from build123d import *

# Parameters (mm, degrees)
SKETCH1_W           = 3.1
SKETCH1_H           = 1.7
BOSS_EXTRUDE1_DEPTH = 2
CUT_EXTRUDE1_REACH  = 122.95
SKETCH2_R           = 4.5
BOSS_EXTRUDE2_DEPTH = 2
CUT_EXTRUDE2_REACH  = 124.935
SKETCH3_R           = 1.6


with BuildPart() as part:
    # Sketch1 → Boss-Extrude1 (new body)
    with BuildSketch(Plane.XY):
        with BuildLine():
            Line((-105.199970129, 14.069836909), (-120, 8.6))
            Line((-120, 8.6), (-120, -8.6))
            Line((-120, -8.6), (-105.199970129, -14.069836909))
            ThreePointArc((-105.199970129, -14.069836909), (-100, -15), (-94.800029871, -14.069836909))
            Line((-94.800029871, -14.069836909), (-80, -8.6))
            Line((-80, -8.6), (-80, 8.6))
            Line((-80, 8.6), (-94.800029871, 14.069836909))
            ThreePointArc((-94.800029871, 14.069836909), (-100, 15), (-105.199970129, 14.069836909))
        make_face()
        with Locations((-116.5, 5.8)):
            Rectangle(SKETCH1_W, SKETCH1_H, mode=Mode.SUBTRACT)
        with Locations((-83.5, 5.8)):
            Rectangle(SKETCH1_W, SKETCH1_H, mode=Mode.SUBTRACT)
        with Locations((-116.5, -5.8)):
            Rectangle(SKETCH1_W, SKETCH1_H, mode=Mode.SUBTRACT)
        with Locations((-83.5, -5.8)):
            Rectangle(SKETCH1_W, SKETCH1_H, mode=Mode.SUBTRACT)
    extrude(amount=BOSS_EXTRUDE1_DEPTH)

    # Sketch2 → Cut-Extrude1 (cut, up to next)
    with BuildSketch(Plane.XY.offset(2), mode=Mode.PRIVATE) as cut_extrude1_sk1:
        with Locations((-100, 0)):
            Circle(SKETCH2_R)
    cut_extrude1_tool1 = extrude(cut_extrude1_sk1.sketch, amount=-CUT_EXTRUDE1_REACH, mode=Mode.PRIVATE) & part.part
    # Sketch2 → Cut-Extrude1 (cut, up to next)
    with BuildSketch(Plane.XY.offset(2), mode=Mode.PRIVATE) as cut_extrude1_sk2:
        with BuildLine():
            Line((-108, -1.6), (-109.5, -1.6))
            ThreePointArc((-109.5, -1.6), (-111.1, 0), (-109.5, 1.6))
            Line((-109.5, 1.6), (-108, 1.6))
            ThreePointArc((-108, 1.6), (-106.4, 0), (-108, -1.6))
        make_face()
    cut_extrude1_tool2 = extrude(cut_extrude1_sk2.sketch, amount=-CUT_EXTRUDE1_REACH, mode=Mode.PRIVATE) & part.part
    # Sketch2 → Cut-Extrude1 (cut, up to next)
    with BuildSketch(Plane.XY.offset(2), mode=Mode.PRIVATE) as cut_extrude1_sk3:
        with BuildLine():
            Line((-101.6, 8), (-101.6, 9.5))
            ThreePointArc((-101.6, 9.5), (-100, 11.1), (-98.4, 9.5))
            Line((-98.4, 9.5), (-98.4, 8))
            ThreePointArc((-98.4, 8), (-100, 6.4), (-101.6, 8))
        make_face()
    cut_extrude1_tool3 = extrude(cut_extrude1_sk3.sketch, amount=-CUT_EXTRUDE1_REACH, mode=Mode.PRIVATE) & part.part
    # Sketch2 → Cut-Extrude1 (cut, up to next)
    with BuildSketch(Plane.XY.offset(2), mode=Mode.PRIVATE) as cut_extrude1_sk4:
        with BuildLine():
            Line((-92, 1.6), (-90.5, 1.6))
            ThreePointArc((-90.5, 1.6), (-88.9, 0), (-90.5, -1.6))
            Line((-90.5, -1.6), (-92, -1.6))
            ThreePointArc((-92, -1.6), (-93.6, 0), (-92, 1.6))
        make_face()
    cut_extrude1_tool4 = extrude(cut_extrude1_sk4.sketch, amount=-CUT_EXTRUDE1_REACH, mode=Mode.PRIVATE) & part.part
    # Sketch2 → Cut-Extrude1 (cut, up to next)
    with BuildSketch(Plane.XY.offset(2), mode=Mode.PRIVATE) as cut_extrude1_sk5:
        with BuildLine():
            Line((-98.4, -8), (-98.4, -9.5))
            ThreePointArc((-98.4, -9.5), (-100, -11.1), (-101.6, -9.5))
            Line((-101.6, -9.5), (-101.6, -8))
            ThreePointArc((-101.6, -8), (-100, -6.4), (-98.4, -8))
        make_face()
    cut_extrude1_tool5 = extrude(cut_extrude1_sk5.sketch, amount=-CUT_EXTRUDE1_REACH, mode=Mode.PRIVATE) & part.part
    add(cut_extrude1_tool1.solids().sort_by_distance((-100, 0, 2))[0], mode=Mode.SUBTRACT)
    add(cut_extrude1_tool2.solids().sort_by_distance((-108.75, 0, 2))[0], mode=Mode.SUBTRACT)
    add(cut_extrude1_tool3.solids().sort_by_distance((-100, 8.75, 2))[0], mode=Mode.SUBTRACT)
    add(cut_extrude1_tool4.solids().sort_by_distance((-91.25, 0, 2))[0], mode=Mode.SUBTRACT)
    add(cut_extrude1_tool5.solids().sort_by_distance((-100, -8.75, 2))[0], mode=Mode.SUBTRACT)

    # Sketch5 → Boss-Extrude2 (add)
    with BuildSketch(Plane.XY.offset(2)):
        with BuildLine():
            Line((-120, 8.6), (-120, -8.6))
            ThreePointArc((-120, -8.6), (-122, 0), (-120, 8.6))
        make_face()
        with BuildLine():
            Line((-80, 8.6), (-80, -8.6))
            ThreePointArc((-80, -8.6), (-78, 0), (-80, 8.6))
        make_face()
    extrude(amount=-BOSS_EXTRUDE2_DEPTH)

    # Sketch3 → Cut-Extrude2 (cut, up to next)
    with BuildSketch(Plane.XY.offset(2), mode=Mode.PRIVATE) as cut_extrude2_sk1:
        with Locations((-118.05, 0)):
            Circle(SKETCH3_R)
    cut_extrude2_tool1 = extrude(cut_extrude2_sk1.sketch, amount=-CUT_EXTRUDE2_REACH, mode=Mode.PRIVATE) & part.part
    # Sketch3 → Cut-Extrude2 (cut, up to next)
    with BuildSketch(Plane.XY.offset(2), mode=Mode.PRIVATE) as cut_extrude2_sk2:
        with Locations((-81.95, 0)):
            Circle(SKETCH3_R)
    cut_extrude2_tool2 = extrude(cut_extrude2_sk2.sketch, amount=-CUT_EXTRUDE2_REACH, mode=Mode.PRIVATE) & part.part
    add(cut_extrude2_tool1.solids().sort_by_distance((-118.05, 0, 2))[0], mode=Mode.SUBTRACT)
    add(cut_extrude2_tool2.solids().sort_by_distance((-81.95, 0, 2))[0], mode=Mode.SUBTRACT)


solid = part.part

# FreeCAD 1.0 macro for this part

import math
import FreeCAD as App
import Part
import Sketcher

V = App.Vector
Q = App.Units.Quantity

doc = App.newDocument("Part")
body = doc.addObject("PartDesign::Body", "Body")

sketch1 = doc.addObject("Sketcher::SketchObject", "Sketch")
body.addObject(sketch1)
sketch1.AttachmentSupport = (doc.XY_Plane, [""])
sketch1.MapMode = "FlatFace"
sketch1.addGeometry([
    Part.LineSegment(V(-105.19997, 14.069837, 0), V(-120, 8.6, 0)),
    Part.LineSegment(V(-120, 8.6, 0), V(-120, -8.6, 0)),
    Part.LineSegment(V(-120, -8.6, 0), V(-105.19997, -14.069837, 0)),
    Part.ArcOfCircle(Part.Circle(V(-100, 0, 0), V(0, 0, 1), 15), math.radians(-110.283447), math.radians(-69.716553)),
    Part.LineSegment(V(-94.80003, -14.069837, 0), V(-80, -8.6, 0)),
    Part.LineSegment(V(-80, -8.6, 0), V(-80, 8.6, 0)),
    Part.LineSegment(V(-80, 8.6, 0), V(-94.80003, 14.069837, 0)),
    Part.ArcOfCircle(Part.Circle(V(-100, 0, 0), V(0, 0, 1), 15), math.radians(69.716553), math.radians(110.283447)),
    Part.LineSegment(V(-114.95, -6.65, 0), V(-118.05, -6.65, 0)),
    Part.LineSegment(V(-118.05, -6.65, 0), V(-118.05, -4.95, 0)),
    Part.LineSegment(V(-118.05, -4.95, 0), V(-114.95, -4.95, 0)),
    Part.LineSegment(V(-114.95, -4.95, 0), V(-114.95, -6.65, 0)),
    Part.LineSegment(V(-81.95, -6.65, 0), V(-85.05, -6.65, 0)),
    Part.LineSegment(V(-85.05, -6.65, 0), V(-85.05, -4.95, 0)),
    Part.LineSegment(V(-85.05, -4.95, 0), V(-81.95, -4.95, 0)),
    Part.LineSegment(V(-81.95, -4.95, 0), V(-81.95, -6.65, 0)),
    Part.LineSegment(V(-114.95, 4.95, 0), V(-118.05, 4.95, 0)),
    Part.LineSegment(V(-118.05, 4.95, 0), V(-118.05, 6.65, 0)),
    Part.LineSegment(V(-118.05, 6.65, 0), V(-114.95, 6.65, 0)),
    Part.LineSegment(V(-114.95, 6.65, 0), V(-114.95, 4.95, 0)),
    Part.LineSegment(V(-81.95, 4.95, 0), V(-85.05, 4.95, 0)),
    Part.LineSegment(V(-85.05, 4.95, 0), V(-85.05, 6.65, 0)),
    Part.LineSegment(V(-85.05, 6.65, 0), V(-81.95, 6.65, 0)),
    Part.LineSegment(V(-81.95, 6.65, 0), V(-81.95, 4.95, 0)),
], False)
sketch1.addConstraint([
    Sketcher.Constraint("Coincident", 0, 2, 1, 1),
    Sketcher.Constraint("Coincident", 1, 2, 2, 1),
    Sketcher.Constraint("Tangent", 2, 2, 3, 1),
    Sketcher.Constraint("Tangent", 3, 2, 4, 1),
    Sketcher.Constraint("Coincident", 4, 2, 5, 1),
    Sketcher.Constraint("Coincident", 5, 2, 6, 1),
    Sketcher.Constraint("Tangent", 6, 2, 7, 1),
    Sketcher.Constraint("Tangent", 7, 2, 0, 1),
    Sketcher.Constraint("Coincident", 8, 2, 9, 1),
    Sketcher.Constraint("Coincident", 9, 2, 10, 1),
    Sketcher.Constraint("Coincident", 10, 2, 11, 1),
    Sketcher.Constraint("Coincident", 11, 2, 8, 1),
    Sketcher.Constraint("Coincident", 12, 2, 13, 1),
    Sketcher.Constraint("Coincident", 13, 2, 14, 1),
    Sketcher.Constraint("Coincident", 14, 2, 15, 1),
    Sketcher.Constraint("Coincident", 15, 2, 12, 1),
    Sketcher.Constraint("Coincident", 16, 2, 17, 1),
    Sketcher.Constraint("Coincident", 17, 2, 18, 1),
    Sketcher.Constraint("Coincident", 18, 2, 19, 1),
    Sketcher.Constraint("Coincident", 19, 2, 16, 1),
    Sketcher.Constraint("Coincident", 20, 2, 21, 1),
    Sketcher.Constraint("Coincident", 21, 2, 22, 1),
    Sketcher.Constraint("Coincident", 22, 2, 23, 1),
    Sketcher.Constraint("Coincident", 23, 2, 20, 1),
    Sketcher.Constraint("Vertical", 1),
    Sketcher.Constraint("Vertical", 5),
    Sketcher.Constraint("Horizontal", 8),
    Sketcher.Constraint("Vertical", 9),
    Sketcher.Constraint("Horizontal", 10),
    Sketcher.Constraint("Vertical", 11),
    Sketcher.Constraint("Horizontal", 12),
    Sketcher.Constraint("Vertical", 13),
    Sketcher.Constraint("Horizontal", 14),
    Sketcher.Constraint("Vertical", 15),
    Sketcher.Constraint("Horizontal", 16),
    Sketcher.Constraint("Vertical", 17),
    Sketcher.Constraint("Horizontal", 18),
    Sketcher.Constraint("Vertical", 19),
    Sketcher.Constraint("Horizontal", 20),
    Sketcher.Constraint("Vertical", 21),
    Sketcher.Constraint("Horizontal", 22),
    Sketcher.Constraint("Vertical", 23),
    Sketcher.Constraint("Coincident", 7, 3, 3, 3),
    Sketcher.Constraint("Equal", 3, 7),
    Sketcher.Constraint("Symmetric", 3, 2, 6, 2, -1),
    Sketcher.Constraint("Symmetric", 9, 2, 16, 2, -1),
    Sketcher.Constraint("Symmetric", 11, 2, 18, 2, -1),
    Sketcher.Constraint("Symmetric", 13, 2, 20, 2, -1),
    Sketcher.Constraint("Symmetric", 15, 2, 22, 2, -1),
    Sketcher.Constraint("Parallel", 0, 4),
    Sketcher.Constraint("Parallel", 2, 6),
    Sketcher.Constraint("Horizontal", 1, 2, 4, 2),
    Sketcher.Constraint("Horizontal", 11, 2, 12, 2),
    Sketcher.Constraint("Horizontal", 10, 2, 13, 2),
    Sketcher.Constraint("Equal", 10, 12),
    Sketcher.Constraint("Radius", 3, Q("15 mm")),
    Sketcher.Constraint("DistanceX", 8, 2, 8, 1, Q("3.1 mm")),
    Sketcher.Constraint("DistanceY", 1, 2, 1, 1, Q("17.2 mm")),
    Sketcher.Constraint("DistanceY", 9, 1, 9, 2, Q("1.7 mm")),
    Sketcher.Constraint("DistanceX", 3, 3, -1, 1, Q("100 mm")),
    Sketcher.Constraint("DistanceX", 0, 2, -1, 1, Q("120 mm")),
    Sketcher.Constraint("DistanceY", 9, 2, 16, 2, Q("9.9 mm")),
    Sketcher.Constraint("DistanceX", 8, 2, -1, 1, Q("118.05 mm")),
    Sketcher.Constraint("DistanceX", 12, 2, -1, 1, Q("85.05 mm")),
])
pad1 = doc.addObject("PartDesign::Pad", "Pad")
body.addObject(pad1)
pad1.Profile = sketch1
pad1.Length = 2

sketch2 = doc.addObject("Sketcher::SketchObject", "Sketch001")
body.addObject(sketch2)
sketch2.AttachmentSupport = (doc.XY_Plane, [""])
sketch2.MapMode = "FlatFace"
sketch2.AttachmentOffset = App.Placement(V(0, 0, 2), App.Rotation())
sketch2.addGeometry(Part.Circle(V(-100, 0, 0), V(0, 0, 1), 4.5), False)
sketch2.addConstraint([
    Sketcher.Constraint("PointOnObject", 0, 3, -1),
    Sketcher.Constraint("Diameter", 0, Q("9 mm")),
    Sketcher.Constraint("DistanceX", 0, 3, -1, 1, Q("100 mm")),
])
pocket1 = doc.addObject("PartDesign::Pocket", "Pocket")
body.addObject(pocket1)
pocket1.Profile = sketch2
pocket1.Type = "UpToFirst"

sketch3 = doc.addObject("Sketcher::SketchObject", "Sketch002")
body.addObject(sketch3)
sketch3.AttachmentSupport = (doc.XY_Plane, [""])
sketch3.MapMode = "FlatFace"
sketch3.AttachmentOffset = App.Placement(V(0, 0, 2), App.Rotation())
sketch3.addGeometry([
    Part.LineSegment(V(-109.5, -1.6, 0), V(-108, -1.6, 0)),
    Part.ArcOfCircle(Part.Circle(V(-108, 0, 0), V(0, 0, 1), 1.6), math.radians(-90), math.radians(90)),
    Part.LineSegment(V(-108, 1.6, 0), V(-109.5, 1.6, 0)),
    Part.ArcOfCircle(Part.Circle(V(-109.5, 0, 0), V(0, 0, 1), 1.6), math.radians(90), math.radians(270)),
], False)
sketch3.addConstraint([
    Sketcher.Constraint("Tangent", 0, 2, 1, 1),
    Sketcher.Constraint("Tangent", 1, 2, 2, 1),
    Sketcher.Constraint("Tangent", 2, 2, 3, 1),
    Sketcher.Constraint("Tangent", 3, 2, 0, 1),
    Sketcher.Constraint("Horizontal", 0),
    Sketcher.Constraint("Horizontal", 2),
    Sketcher.Constraint("PointOnObject", 1, 3, -1),
    Sketcher.Constraint("Radius", 1, Q("1.6 mm")),
    Sketcher.Constraint("DistanceX", 0, 1, 0, 2, Q("1.5 mm")),
    Sketcher.Constraint("DistanceX", 1, 3, -1, 1, Q("108 mm")),
])
pocket2 = doc.addObject("PartDesign::Pocket", "Pocket001")
body.addObject(pocket2)
pocket2.Profile = sketch3
pocket2.Type = "UpToFirst"

sketch4 = doc.addObject("Sketcher::SketchObject", "Sketch003")
body.addObject(sketch4)
sketch4.AttachmentSupport = (doc.XY_Plane, [""])
sketch4.MapMode = "FlatFace"
sketch4.AttachmentOffset = App.Placement(V(0, 0, 2), App.Rotation())
sketch4.addGeometry([
    Part.LineSegment(V(-101.6, 9.5, 0), V(-101.6, 8, 0)),
    Part.ArcOfCircle(Part.Circle(V(-100, 8, 0), V(0, 0, 1), 1.6), math.radians(180), math.radians(360)),
    Part.LineSegment(V(-98.4, 8, 0), V(-98.4, 9.5, 0)),
    Part.ArcOfCircle(Part.Circle(V(-100, 9.5, 0), V(0, 0, 1), 1.6), math.radians(0), math.radians(180)),
], False)
sketch4.addConstraint([
    Sketcher.Constraint("Tangent", 0, 2, 1, 1),
    Sketcher.Constraint("Tangent", 1, 2, 2, 1),
    Sketcher.Constraint("Tangent", 2, 2, 3, 1),
    Sketcher.Constraint("Tangent", 3, 2, 0, 1),
    Sketcher.Constraint("Vertical", 0),
    Sketcher.Constraint("Vertical", 2),
    Sketcher.Constraint("Radius", 1, Q("1.6 mm")),
    Sketcher.Constraint("DistanceY", 0, 2, 0, 1, Q("1.5 mm")),
    Sketcher.Constraint("DistanceX", 1, 3, -1, 1, Q("100 mm")),
    Sketcher.Constraint("DistanceY", -1, 1, 1, 3, Q("8 mm")),
])
pocket3 = doc.addObject("PartDesign::Pocket", "Pocket002")
body.addObject(pocket3)
pocket3.Profile = sketch4
pocket3.Type = "UpToFirst"

sketch5 = doc.addObject("Sketcher::SketchObject", "Sketch004")
body.addObject(sketch5)
sketch5.AttachmentSupport = (doc.XY_Plane, [""])
sketch5.MapMode = "FlatFace"
sketch5.AttachmentOffset = App.Placement(V(0, 0, 2), App.Rotation())
sketch5.addGeometry([
    Part.LineSegment(V(-90.5, 1.6, 0), V(-92, 1.6, 0)),
    Part.ArcOfCircle(Part.Circle(V(-92, 0, 0), V(0, 0, 1), 1.6), math.radians(90), math.radians(270)),
    Part.LineSegment(V(-92, -1.6, 0), V(-90.5, -1.6, 0)),
    Part.ArcOfCircle(Part.Circle(V(-90.5, 0, 0), V(0, 0, 1), 1.6), math.radians(-90), math.radians(90)),
], False)
sketch5.addConstraint([
    Sketcher.Constraint("Tangent", 0, 2, 1, 1),
    Sketcher.Constraint("Tangent", 1, 2, 2, 1),
    Sketcher.Constraint("Tangent", 2, 2, 3, 1),
    Sketcher.Constraint("Tangent", 3, 2, 0, 1),
    Sketcher.Constraint("Horizontal", 0),
    Sketcher.Constraint("Horizontal", 2),
    Sketcher.Constraint("PointOnObject", 1, 3, -1),
    Sketcher.Constraint("Radius", 1, Q("1.6 mm")),
    Sketcher.Constraint("DistanceX", 0, 2, 0, 1, Q("1.5 mm")),
    Sketcher.Constraint("DistanceX", 1, 3, -1, 1, Q("92 mm")),
])
pocket4 = doc.addObject("PartDesign::Pocket", "Pocket003")
body.addObject(pocket4)
pocket4.Profile = sketch5
pocket4.Type = "UpToFirst"

sketch6 = doc.addObject("Sketcher::SketchObject", "Sketch005")
body.addObject(sketch6)
sketch6.AttachmentSupport = (doc.XY_Plane, [""])
sketch6.MapMode = "FlatFace"
sketch6.AttachmentOffset = App.Placement(V(0, 0, 2), App.Rotation())
sketch6.addGeometry([
    Part.LineSegment(V(-98.4, -9.5, 0), V(-98.4, -8, 0)),
    Part.ArcOfCircle(Part.Circle(V(-100, -8, 0), V(0, 0, 1), 1.6), math.radians(0), math.radians(180)),
    Part.LineSegment(V(-101.6, -8, 0), V(-101.6, -9.5, 0)),
    Part.ArcOfCircle(Part.Circle(V(-100, -9.5, 0), V(0, 0, 1), 1.6), math.radians(180), math.radians(360)),
], False)
sketch6.addConstraint([
    Sketcher.Constraint("Tangent", 0, 2, 1, 1),
    Sketcher.Constraint("Tangent", 1, 2, 2, 1),
    Sketcher.Constraint("Tangent", 2, 2, 3, 1),
    Sketcher.Constraint("Tangent", 3, 2, 0, 1),
    Sketcher.Constraint("Vertical", 0),
    Sketcher.Constraint("Vertical", 2),
    Sketcher.Constraint("Radius", 1, Q("1.6 mm")),
    Sketcher.Constraint("DistanceY", 0, 1, 0, 2, Q("1.5 mm")),
    Sketcher.Constraint("DistanceX", 1, 3, -1, 1, Q("100 mm")),
    Sketcher.Constraint("DistanceY", 1, 3, -1, 1, Q("8 mm")),
])
pocket5 = doc.addObject("PartDesign::Pocket", "Pocket004")
body.addObject(pocket5)
pocket5.Profile = sketch6
pocket5.Type = "UpToFirst"

sketch7 = doc.addObject("Sketcher::SketchObject", "Sketch006")
body.addObject(sketch7)
sketch7.AttachmentSupport = (doc.XY_Plane, [""])
sketch7.MapMode = "FlatFace"
sketch7.AttachmentOffset = App.Placement(V(0, 0, 2), App.Rotation())
sketch7.addGeometry([
    Part.LineSegment(V(-120, -8.6, 0), V(-120, 8.6, 0)),
    Part.ArcOfCircle(Part.Circle(V(-102.51, 0, 0), V(0, 0, 1), 19.49), math.radians(153.816214), math.radians(206.183786)),
    Part.LineSegment(V(-80, 8.6, 0), V(-80, -8.6, 0)),
    Part.ArcOfCircle(Part.Circle(V(-97.49, 0, 0), V(0, 0, 1), 19.49), math.radians(-26.183786), math.radians(26.183786)),
], False)
sketch7.addConstraint([
    Sketcher.Constraint("Coincident", 0, 1, 1, 2),
    Sketcher.Constraint("Coincident", 1, 1, 0, 2),
    Sketcher.Constraint("Coincident", 2, 1, 3, 2),
    Sketcher.Constraint("Coincident", 3, 1, 2, 2),
    Sketcher.Constraint("Vertical", 0),
    Sketcher.Constraint("Vertical", 2),
    Sketcher.Constraint("Equal", 1, 3),
    Sketcher.Constraint("PointOnObject", 1, 3, -1),
    Sketcher.Constraint("PointOnObject", 3, 3, -1),
    Sketcher.Constraint("Horizontal", 1, 1, 2, 1),
    Sketcher.Constraint("Radius", 1, Q("19.49 mm")),
    Sketcher.Constraint("DistanceY", 0, 1, 0, 2, Q("17.2 mm")),
    Sketcher.Constraint("DistanceX", 0, 1, -1, 1, Q("120 mm")),
    Sketcher.Constraint("DistanceX", 2, 1, -1, 1, Q("80 mm")),
])
pad2 = doc.addObject("PartDesign::Pad", "Pad001")
body.addObject(pad2)
pad2.Profile = sketch7
pad2.Length = 2
pad2.Reversed = True

sketch8 = doc.addObject("Sketcher::SketchObject", "Sketch007")
body.addObject(sketch8)
sketch8.AttachmentSupport = (doc.XY_Plane, [""])
sketch8.MapMode = "FlatFace"
sketch8.AttachmentOffset = App.Placement(V(0, 0, 2), App.Rotation())
sketch8.addGeometry(Part.Circle(V(-118.05, 0, 0), V(0, 0, 1), 1.6), False)
sketch8.addConstraint([
    Sketcher.Constraint("PointOnObject", 0, 3, -1),
    Sketcher.Constraint("Diameter", 0, Q("3.2 mm")),
    Sketcher.Constraint("DistanceX", 0, 3, -1, 1, Q("118.05 mm")),
])
pocket6 = doc.addObject("PartDesign::Pocket", "Pocket005")
body.addObject(pocket6)
pocket6.Profile = sketch8
pocket6.Type = "UpToFirst"

sketch9 = doc.addObject("Sketcher::SketchObject", "Sketch008")
body.addObject(sketch9)
sketch9.AttachmentSupport = (doc.XY_Plane, [""])
sketch9.MapMode = "FlatFace"
sketch9.AttachmentOffset = App.Placement(V(0, 0, 2), App.Rotation())
sketch9.addGeometry(Part.Circle(V(-81.95, 0, 0), V(0, 0, 1), 1.6), False)
sketch9.addConstraint([
    Sketcher.Constraint("PointOnObject", 0, 3, -1),
    Sketcher.Constraint("Diameter", 0, Q("3.2 mm")),
    Sketcher.Constraint("DistanceX", 0, 3, -1, 1, Q("81.95 mm")),
])
pocket7 = doc.addObject("PartDesign::Pocket", "Pocket006")
body.addObject(pocket7)
pocket7.Profile = sketch9
pocket7.Type = "UpToFirst"

doc.recompute()
